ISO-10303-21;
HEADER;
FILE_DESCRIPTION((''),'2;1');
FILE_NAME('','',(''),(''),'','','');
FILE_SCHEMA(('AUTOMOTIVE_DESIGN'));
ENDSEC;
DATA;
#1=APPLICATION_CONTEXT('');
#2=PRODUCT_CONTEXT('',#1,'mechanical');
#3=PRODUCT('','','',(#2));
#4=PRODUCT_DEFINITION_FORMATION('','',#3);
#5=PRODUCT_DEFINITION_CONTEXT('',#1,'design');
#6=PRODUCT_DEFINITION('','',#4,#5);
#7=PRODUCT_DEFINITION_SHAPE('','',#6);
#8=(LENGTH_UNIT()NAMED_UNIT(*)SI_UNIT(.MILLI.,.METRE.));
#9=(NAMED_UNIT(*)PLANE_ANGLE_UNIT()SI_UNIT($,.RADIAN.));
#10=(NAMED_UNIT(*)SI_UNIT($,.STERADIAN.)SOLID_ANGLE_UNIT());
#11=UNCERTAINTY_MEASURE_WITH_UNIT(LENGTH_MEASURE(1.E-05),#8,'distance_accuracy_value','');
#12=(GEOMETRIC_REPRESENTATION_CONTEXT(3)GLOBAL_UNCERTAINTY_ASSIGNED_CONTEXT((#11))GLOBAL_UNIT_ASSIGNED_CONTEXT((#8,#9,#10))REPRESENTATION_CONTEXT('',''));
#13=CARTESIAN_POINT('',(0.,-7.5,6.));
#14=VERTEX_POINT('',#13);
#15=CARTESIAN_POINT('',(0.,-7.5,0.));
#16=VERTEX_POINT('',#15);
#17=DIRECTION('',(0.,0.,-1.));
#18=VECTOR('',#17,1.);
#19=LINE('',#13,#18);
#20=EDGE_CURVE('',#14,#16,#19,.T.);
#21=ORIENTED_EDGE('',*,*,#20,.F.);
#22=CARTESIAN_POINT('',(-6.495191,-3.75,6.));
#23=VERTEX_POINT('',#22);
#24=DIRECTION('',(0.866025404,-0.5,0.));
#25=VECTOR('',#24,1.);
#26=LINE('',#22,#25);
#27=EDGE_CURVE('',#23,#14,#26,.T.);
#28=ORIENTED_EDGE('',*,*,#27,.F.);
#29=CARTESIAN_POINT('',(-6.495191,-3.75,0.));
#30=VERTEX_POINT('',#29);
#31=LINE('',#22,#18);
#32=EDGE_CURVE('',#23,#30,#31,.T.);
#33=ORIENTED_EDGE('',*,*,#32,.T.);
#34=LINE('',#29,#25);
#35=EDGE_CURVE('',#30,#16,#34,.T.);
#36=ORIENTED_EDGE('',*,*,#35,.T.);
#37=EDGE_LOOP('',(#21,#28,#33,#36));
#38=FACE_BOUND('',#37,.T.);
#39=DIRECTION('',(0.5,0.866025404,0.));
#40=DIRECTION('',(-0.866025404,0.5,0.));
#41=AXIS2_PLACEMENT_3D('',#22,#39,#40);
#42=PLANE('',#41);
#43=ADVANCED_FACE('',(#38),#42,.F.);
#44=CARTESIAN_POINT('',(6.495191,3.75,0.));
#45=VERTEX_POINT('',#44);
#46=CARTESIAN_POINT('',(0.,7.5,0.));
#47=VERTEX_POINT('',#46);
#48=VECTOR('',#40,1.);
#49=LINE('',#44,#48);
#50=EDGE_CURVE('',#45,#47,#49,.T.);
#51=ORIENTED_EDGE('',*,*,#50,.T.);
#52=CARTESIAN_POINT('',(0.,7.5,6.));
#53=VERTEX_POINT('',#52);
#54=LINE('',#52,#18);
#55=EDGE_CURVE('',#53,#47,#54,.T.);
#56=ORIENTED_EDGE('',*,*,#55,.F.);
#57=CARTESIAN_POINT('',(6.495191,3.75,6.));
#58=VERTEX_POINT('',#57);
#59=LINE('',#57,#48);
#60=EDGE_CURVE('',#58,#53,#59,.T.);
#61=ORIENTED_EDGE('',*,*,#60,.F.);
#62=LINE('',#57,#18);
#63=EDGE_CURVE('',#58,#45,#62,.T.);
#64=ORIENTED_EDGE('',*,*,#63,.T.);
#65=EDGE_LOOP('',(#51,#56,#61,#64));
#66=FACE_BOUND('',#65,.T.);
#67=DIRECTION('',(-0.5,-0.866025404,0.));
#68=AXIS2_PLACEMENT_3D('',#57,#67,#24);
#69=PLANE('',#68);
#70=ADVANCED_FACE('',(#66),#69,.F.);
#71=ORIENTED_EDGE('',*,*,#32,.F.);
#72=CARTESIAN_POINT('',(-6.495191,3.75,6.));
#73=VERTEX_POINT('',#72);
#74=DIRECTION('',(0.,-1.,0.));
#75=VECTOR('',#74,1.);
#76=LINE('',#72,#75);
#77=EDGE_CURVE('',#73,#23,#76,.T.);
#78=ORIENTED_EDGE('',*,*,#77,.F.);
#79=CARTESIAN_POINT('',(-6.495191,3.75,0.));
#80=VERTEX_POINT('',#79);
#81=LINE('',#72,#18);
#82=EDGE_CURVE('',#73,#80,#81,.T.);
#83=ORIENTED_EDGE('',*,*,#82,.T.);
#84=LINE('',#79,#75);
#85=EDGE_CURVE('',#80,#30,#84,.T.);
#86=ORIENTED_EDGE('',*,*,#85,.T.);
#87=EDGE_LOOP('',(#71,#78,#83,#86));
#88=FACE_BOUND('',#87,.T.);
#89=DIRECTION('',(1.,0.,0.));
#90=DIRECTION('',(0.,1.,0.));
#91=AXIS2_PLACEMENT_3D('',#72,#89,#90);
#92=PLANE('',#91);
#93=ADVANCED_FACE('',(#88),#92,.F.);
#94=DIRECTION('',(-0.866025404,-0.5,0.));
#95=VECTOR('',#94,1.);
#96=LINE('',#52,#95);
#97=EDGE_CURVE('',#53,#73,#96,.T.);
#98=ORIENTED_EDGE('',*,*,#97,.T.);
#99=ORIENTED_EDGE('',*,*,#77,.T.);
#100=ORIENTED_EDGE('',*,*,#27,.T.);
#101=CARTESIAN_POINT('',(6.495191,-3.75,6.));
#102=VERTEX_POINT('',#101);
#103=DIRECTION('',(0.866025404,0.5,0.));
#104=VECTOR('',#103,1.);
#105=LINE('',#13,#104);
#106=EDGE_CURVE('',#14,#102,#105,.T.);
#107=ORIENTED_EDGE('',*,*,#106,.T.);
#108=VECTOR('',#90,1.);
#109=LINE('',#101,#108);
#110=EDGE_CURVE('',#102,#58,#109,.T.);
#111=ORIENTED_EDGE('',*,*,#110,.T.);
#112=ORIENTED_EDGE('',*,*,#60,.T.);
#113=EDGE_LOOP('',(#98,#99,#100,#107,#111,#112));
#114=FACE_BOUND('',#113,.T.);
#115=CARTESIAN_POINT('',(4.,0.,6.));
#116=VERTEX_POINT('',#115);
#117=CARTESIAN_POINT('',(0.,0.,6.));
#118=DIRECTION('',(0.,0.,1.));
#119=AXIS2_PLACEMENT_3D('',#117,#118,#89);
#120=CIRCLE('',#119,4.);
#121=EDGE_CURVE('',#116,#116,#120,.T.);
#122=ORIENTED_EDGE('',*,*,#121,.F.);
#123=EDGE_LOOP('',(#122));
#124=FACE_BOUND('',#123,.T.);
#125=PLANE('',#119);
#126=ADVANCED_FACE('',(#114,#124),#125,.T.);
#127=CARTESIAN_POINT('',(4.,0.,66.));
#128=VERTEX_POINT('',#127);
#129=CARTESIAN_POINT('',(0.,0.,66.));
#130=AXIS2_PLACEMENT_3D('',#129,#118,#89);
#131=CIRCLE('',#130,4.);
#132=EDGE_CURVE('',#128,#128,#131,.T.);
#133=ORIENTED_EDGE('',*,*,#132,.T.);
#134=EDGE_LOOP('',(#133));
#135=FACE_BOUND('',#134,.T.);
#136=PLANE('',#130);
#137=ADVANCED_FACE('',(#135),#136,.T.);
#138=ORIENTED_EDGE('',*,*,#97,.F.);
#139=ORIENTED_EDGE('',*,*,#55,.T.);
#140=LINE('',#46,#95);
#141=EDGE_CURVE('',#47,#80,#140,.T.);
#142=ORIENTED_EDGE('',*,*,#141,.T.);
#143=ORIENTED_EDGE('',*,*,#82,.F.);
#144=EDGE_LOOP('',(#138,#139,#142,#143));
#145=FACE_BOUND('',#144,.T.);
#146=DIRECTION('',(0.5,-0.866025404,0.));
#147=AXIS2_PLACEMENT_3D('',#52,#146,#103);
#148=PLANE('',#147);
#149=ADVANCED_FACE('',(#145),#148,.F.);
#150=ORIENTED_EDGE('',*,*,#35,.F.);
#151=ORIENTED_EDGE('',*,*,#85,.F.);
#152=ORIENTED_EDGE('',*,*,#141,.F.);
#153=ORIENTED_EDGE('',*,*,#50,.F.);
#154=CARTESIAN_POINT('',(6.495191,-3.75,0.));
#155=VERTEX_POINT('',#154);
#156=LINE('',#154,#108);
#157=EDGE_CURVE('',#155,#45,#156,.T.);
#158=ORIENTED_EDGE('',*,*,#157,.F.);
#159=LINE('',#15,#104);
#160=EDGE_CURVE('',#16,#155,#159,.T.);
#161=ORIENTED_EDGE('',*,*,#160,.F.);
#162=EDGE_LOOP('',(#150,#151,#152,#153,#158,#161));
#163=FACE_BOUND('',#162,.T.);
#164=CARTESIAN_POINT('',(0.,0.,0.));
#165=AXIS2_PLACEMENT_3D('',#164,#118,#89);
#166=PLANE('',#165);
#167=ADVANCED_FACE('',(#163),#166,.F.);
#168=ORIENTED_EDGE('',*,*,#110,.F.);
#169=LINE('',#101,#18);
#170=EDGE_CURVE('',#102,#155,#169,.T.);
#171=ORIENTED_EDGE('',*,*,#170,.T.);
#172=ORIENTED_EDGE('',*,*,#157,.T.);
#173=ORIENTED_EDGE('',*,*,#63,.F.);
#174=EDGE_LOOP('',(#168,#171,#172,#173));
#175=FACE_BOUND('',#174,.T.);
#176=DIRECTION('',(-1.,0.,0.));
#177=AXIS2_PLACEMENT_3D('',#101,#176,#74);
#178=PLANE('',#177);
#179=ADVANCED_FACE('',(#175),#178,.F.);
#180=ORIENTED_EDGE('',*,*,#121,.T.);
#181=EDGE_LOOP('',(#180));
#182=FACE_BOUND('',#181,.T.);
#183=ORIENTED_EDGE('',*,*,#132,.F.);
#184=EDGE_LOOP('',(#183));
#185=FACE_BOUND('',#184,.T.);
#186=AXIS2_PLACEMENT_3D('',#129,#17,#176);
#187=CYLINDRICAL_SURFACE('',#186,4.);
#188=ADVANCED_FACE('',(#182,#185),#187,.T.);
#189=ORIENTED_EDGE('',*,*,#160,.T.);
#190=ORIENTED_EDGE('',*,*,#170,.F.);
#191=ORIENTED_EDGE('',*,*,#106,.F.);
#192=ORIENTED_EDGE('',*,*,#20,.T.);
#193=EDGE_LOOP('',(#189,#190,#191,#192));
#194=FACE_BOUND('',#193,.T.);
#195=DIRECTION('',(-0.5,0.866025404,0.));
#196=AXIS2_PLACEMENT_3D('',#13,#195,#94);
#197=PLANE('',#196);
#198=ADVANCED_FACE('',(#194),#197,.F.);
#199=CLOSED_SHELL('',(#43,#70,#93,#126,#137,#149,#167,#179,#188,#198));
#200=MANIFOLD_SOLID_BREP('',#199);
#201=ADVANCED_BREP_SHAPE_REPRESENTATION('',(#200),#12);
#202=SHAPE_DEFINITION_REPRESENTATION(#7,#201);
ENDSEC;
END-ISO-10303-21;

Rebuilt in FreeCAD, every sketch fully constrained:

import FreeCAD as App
import Part
import Sketcher
from FreeCAD import Vector
Q = App.Units.Quantity

doc = App.newDocument("Part")
params = doc.addObject("Spreadsheet::Sheet", "Params")
for row, (alias, value) in enumerate([
    ("sketch1_height", "7.5 mm"),
    ("pad1_length", "6 mm"),
    ("sketch2_diameter", "8 mm"),
    ("pad2_length", "60 mm"),
], start=1):
    params.set(f"A{row}", alias)
    params.set(f"B{row}", "=" + value)
    params.setAlias(f"B{row}", alias)

body = doc.addObject("PartDesign::Body", "Body")

# Sketch on XY plane
sketch1 = doc.addObject("Sketcher::SketchObject", "Sketch")
body.addObject(sketch1)
sketch1.AttachmentSupport = (doc.XY_Plane, [""])
sketch1.MapMode = "FlatFace"
sketch1.addGeometry([
    Part.LineSegment(Vector(0, 8, 0), Vector(-6, 4, 0)),  # 0
    Part.LineSegment(Vector(-6, 4, 0), Vector(-6, -4, 0)),  # 1
    Part.LineSegment(Vector(-6, -4, 0), Vector(0, -8, 0)),  # 2
    Part.LineSegment(Vector(0, -8, 0), Vector(6, -4, 0)),  # 3
    Part.LineSegment(Vector(6, -4, 0), Vector(6, 4, 0)),  # 4
    Part.LineSegment(Vector(6, 4, 0), Vector(0, 8, 0)),  # 5
], False)
sketch1.addConstraint([
    Sketcher.Constraint("Coincident", 0, 2, 1, 1),
    Sketcher.Constraint("Coincident", 1, 2, 2, 1),
    Sketcher.Constraint("Coincident", 2, 2, 3, 1),
    Sketcher.Constraint("Coincident", 3, 2, 4, 1),
    Sketcher.Constraint("Coincident", 4, 2, 5, 1),
    Sketcher.Constraint("Coincident", 5, 2, 0, 1),
    Sketcher.Constraint("Vertical", 1),
    Sketcher.Constraint("Vertical", 4),
    Sketcher.Constraint("Symmetric", 0, 2, 3, 2, -1, 1),
    Sketcher.Constraint("Symmetric", 2, 2, 5, 2, -1, 1),
    Sketcher.Constraint("PointOnObject", 2, 2, -2),
    Sketcher.Constraint("Parallel", 2, 5),
    Sketcher.Constraint("Horizontal", 1, 2, 3, 2),
    Sketcher.Constraint("Angle", 0, Q("-150 deg")),
    Sketcher.Constraint("DistanceY", 1, 2, 1, 1, 7.5),
    Sketcher.Constraint("DistanceY", 2, 2, 5, 2, 15.0),
])
sketch1.setExpression("Constraints[14]", "Params.sketch1_height")
pad1 = doc.addObject("PartDesign::Pad", "Pad")
body.addObject(pad1)
pad1.Profile = sketch1
pad1.setExpression("Length", "Params.pad1_length")

# Sketch on XY plane
sketch2 = doc.addObject("Sketcher::SketchObject", "Sketch001")
body.addObject(sketch2)
sketch2.AttachmentSupport = (doc.XY_Plane, [""])
sketch2.MapMode = "FlatFace"
sketch2.AttachmentOffset = App.Placement(Vector(0, 0, 6), App.Rotation())
sketch2.addGeometry(Part.Circle(Vector(0, 0, 0), Vector(0, 0, 1), 4), False)
sketch2.addConstraint([
    Sketcher.Constraint("Coincident", 0, 3, -1, 1),
    Sketcher.Constraint("Diameter", 0, 8.0),
])
sketch2.setExpression("Constraints[1]", "Params.sketch2_diameter")
pad2 = doc.addObject("PartDesign::Pad", "Pad001")
body.addObject(pad2)
pad2.Profile = sketch2
pad2.setExpression("Length", "Params.pad2_length")

doc.recompute()
